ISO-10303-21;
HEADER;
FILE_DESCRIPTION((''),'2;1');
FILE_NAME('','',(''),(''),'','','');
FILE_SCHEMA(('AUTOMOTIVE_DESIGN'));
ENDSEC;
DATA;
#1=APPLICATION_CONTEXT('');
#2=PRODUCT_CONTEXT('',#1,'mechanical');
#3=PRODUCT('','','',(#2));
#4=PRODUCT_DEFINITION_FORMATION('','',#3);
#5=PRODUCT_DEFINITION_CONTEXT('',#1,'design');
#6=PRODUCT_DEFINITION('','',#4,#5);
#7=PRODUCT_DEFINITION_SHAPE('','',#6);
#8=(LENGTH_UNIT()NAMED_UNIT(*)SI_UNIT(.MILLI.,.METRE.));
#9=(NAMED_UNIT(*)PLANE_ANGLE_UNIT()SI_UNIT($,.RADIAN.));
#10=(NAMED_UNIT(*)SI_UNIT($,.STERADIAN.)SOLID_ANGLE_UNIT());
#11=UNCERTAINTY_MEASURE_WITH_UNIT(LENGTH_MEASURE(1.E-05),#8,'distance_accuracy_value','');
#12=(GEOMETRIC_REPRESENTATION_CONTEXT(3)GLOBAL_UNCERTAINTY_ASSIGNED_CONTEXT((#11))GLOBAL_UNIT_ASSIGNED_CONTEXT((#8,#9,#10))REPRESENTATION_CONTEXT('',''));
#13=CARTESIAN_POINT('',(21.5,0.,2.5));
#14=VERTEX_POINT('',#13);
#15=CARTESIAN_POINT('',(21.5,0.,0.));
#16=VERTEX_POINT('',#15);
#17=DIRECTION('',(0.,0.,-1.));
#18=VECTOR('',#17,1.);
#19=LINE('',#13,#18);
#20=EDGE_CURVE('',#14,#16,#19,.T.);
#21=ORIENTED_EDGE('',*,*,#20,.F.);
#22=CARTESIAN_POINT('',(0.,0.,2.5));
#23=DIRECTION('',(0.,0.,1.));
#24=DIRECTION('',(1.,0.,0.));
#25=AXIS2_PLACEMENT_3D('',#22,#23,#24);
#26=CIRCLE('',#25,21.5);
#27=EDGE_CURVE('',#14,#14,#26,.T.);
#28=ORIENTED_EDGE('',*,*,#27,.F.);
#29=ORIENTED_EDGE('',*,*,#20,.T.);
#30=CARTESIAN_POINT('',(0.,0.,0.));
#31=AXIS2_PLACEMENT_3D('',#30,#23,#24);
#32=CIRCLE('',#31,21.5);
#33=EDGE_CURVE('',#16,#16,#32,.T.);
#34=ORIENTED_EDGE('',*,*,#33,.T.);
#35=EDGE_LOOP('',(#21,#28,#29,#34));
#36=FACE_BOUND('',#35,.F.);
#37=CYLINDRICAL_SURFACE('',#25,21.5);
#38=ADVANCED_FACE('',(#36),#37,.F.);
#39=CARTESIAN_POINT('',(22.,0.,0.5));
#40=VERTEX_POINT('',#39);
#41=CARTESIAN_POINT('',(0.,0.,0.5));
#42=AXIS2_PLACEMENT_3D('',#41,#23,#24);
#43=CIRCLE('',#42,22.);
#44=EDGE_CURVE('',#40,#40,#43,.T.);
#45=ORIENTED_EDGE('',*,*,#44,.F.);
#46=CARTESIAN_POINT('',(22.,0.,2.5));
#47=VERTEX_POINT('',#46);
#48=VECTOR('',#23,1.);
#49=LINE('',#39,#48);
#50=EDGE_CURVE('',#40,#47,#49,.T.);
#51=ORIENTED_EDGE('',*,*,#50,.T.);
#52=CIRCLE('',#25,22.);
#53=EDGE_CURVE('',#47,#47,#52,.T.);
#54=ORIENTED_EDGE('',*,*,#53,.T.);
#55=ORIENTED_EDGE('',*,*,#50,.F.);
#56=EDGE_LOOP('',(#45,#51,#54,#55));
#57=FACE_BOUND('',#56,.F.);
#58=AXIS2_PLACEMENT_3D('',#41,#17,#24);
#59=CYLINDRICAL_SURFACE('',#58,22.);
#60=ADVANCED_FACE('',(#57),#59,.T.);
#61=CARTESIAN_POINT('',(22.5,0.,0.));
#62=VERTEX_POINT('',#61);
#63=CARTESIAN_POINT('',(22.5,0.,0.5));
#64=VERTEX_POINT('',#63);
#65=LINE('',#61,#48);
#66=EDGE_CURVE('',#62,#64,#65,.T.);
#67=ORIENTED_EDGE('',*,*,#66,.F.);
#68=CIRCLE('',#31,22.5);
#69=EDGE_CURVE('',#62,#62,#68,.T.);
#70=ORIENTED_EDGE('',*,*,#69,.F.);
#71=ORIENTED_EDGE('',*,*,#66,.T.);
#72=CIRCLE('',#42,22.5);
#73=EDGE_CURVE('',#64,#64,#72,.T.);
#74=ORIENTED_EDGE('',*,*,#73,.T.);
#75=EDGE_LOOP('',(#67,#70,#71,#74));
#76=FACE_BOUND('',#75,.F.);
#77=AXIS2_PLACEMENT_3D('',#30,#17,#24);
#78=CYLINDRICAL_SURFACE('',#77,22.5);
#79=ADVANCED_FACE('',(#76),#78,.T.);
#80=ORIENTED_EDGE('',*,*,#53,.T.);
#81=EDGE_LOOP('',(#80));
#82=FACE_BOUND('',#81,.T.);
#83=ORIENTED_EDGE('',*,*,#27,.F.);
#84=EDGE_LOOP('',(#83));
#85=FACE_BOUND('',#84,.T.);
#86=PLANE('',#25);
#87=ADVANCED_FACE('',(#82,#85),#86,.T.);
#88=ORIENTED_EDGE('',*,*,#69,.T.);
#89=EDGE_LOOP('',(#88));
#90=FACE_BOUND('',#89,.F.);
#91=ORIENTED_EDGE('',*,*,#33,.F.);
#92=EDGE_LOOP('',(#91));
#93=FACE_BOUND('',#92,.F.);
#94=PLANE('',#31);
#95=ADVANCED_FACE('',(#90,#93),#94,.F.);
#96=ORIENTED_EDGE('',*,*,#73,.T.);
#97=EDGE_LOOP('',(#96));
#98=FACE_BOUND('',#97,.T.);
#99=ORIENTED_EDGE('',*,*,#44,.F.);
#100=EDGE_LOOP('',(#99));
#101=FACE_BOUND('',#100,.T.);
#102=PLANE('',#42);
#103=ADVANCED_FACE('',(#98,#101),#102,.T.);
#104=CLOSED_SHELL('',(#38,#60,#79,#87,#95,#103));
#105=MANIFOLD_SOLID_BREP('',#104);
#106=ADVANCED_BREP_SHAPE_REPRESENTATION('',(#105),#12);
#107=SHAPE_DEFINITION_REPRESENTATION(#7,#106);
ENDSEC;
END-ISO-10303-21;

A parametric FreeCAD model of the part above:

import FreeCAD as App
import Part
import Sketcher
from FreeCAD import Vector

doc = App.newDocument("Part")
params = doc.addObject("Spreadsheet::Sheet", "Params")
for row, (alias, value) in enumerate([
    ("sketch1_diameter", "45 mm"),
    ("pad1_length", "0.5 mm"),
    ("sketch2_diameter", "44 mm"),
    ("pad2_length", "2 mm"),
    ("sketch3_diameter", "43 mm"),
    ("pocket1_length", "5 mm"),
], start=1):
    params.set(f"A{row}", alias)
    params.set(f"B{row}", "=" + value)
    params.setAlias(f"B{row}", alias)

body = doc.addObject("PartDesign::Body", "Body")

# Sketch on XY plane
sketch1 = body.newObject("Sketcher::SketchObject", "Sketch")
sketch1.AttachmentSupport = (doc.getObject("XY_Plane"), [""])
sketch1.MapMode = "FlatFace"
sketch1.addGeometry(Part.Circle(Vector(0, 0, 0), Vector(0, 0, 1), 22.5), False)
sketch1.addConstraint([
    Sketcher.Constraint("Coincident", 0, 3, -1, 1),
    Sketcher.Constraint("Diameter", 0, 45.0),
])
sketch1.setExpression("Constraints[1]", "Params.sketch1_diameter")
pad1 = body.newObject("PartDesign::Pad", "Pad")
pad1.Profile = sketch1
pad1.setExpression("Length", "Params.pad1_length")

# Sketch on XY plane
sketch2 = body.newObject("Sketcher::SketchObject", "Sketch001")
sketch2.AttachmentSupport = (doc.getObject("XY_Plane"), [""])
sketch2.MapMode = "FlatFace"
sketch2.AttachmentOffset = App.Placement(Vector(0, 0, 0.5), App.Rotation())
sketch2.addGeometry(Part.Circle(Vector(0, 0, 0), Vector(0, 0, 1), 22), False)
sketch2.addConstraint([
    Sketcher.Constraint("Coincident", 0, 3, -1, 1),
    Sketcher.Constraint("Diameter", 0, 44.0),
])
sketch2.setExpression("Constraints[1]", "Params.sketch2_diameter")
pad2 = body.newObject("PartDesign::Pad", "Pad001")
pad2.Profile = sketch2
pad2.setExpression("Length", "Params.pad2_length")

# Sketch on XY plane
sketch3 = body.newObject("Sketcher::SketchObject", "Sketch002")
sketch3.AttachmentSupport = (doc.getObject("XY_Plane"), [""])
sketch3.MapMode = "FlatFace"
sketch3.AttachmentOffset = App.Placement(Vector(0, 0, 2.5), App.Rotation())
sketch3.addGeometry(Part.Circle(Vector(0, 0, 0), Vector(0, 0, 1), 21.5), False)
sketch3.addConstraint([
    Sketcher.Constraint("Coincident", 0, 3, -1, 1),
    Sketcher.Constraint("Diameter", 0, 43.0),
])
sketch3.setExpression("Constraints[1]", "Params.sketch3_diameter")
pocket1 = body.newObject("PartDesign::Pocket", "Pocket")
pocket1.Profile = sketch3
pocket1.setExpression("Length", "Params.pocket1_length")

doc.recompute()
